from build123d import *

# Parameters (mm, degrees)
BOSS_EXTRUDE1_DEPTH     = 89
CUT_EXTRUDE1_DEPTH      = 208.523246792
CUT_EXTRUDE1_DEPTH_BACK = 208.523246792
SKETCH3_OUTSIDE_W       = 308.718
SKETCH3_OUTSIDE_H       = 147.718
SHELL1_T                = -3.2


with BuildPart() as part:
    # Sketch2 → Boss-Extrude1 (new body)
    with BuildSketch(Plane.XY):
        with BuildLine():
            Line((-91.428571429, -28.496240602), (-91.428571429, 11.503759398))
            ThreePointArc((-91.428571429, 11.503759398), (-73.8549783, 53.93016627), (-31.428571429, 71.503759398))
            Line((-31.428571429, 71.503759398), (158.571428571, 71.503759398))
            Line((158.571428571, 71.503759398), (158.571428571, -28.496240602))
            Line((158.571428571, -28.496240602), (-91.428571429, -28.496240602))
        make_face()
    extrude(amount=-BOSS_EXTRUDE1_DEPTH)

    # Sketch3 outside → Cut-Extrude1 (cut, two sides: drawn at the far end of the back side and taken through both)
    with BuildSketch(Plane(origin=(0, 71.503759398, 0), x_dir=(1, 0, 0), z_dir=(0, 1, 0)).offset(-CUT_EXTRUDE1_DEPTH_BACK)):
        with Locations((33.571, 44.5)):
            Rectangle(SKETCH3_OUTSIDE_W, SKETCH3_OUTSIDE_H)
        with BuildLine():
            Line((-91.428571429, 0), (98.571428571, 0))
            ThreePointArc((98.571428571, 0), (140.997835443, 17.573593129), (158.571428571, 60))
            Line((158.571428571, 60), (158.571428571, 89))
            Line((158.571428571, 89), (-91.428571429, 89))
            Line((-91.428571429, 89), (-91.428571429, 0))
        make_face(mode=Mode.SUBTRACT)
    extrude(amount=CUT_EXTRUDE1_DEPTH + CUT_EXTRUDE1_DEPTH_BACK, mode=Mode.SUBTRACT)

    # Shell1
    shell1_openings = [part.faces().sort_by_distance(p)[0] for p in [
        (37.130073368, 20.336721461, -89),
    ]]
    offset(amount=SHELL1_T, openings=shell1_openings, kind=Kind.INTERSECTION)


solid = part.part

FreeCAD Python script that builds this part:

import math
import FreeCAD as App
import Part
import Sketcher
from FreeCAD import Vector


def faces_at(feature, points):
    """Names of the faces that lie closest to the given points."""
    faces = feature.Shape.Faces
    near = lambda p: min(range(len(faces)), key=lambda i: faces[i].distToShape(Part.Vertex(*p))[0])
    return sorted({f"Face{near(p) + 1}" for p in points})

doc = App.newDocument("Part")
params = doc.addObject("Spreadsheet::Sheet", "Params")
for row, (alias, value) in enumerate([
    ("sketch1_radius", "60 mm"),
    ("sketch1_width", "250 mm"),
    ("sketch1_height", "40 mm"),
    ("pad1_length", "89 mm"),
    ("sketch2_radius", "60 mm"),
    ("sketch2_width", "190 mm"),
    ("sketch2_height", "89 mm"),
    ("thickness_wall", "3.2 mm"),
], start=1):
    params.set(f"A{row}", alias)
    params.set(f"B{row}", "=" + value)
    params.setAlias(f"B{row}", alias)

body = doc.addObject("PartDesign::Body", "Body")

# Sketch on XY plane
sketch1 = body.newObject("Sketcher::SketchObject", "Sketch")
sketch1.AttachmentSupport = (doc.getObject("XY_Plane"), [""])
sketch1.MapMode = "FlatFace"
sketch1.addGeometry(Part.LineSegment(Vector(-91, 12, 0), Vector(-91, -28, 0)), False)
sketch1.addGeometry(Part.LineSegment(Vector(-91, -28, 0), Vector(159, -28, 0)), False)
sketch1.addGeometry(Part.LineSegment(Vector(159, -28, 0), Vector(159, 72, 0)), False)
sketch1.addGeometry(Part.LineSegment(Vector(159, 72, 0), Vector(-31, 72, 0)), False)
sketch1.addGeometry(Part.ArcOfCircle(Part.Circle(Vector(-31, 12, 0), Vector(0, 0, 1), 60), math.radians(90), math.radians(180)), False)
sketch1.addConstraint(Sketcher.Constraint("Coincident", 0, 2, 1, 1))
sketch1.addConstraint(Sketcher.Constraint("Coincident", 1, 2, 2, 1))
sketch1.addConstraint(Sketcher.Constraint("Coincident", 2, 2, 3, 1))
sketch1.addConstraint(Sketcher.Constraint("Tangent", 3, 2, 4, 1))
sketch1.addConstraint(Sketcher.Constraint("Tangent", 4, 2, 0, 1))
sketch1.addConstraint(Sketcher.Constraint("Vertical", 0))
sketch1.addConstraint(Sketcher.Constraint("Horizontal", 1))
sketch1.addConstraint(Sketcher.Constraint("Vertical", 2))
sketch1.addConstraint(Sketcher.Constraint("Horizontal", 3))
sketch1.addConstraint(Sketcher.Constraint("Radius", 4, 60.0))
sketch1.addConstraint(Sketcher.Constraint("DistanceX", 1, 1, 1, 2, 250.0))
sketch1.addConstraint(Sketcher.Constraint("DistanceY", 0, 2, 0, 1, 40.0))
sketch1.addConstraint(Sketcher.Constraint("DistanceX", 4, 3, -1, 1, 31.428571))
sketch1.addConstraint(Sketcher.Constraint("DistanceY", -1, 1, 4, 3, 11.503759))
sketch1.setExpression("Constraints[9]", "Params.sketch1_radius")
sketch1.setExpression("Constraints[10]", "Params.sketch1_width")
sketch1.setExpression("Constraints[11]", "Params.sketch1_height")
pad1 = body.newObject("PartDesign::Pad", "Pad")
pad1.Profile = sketch1
pad1.setExpression("Length", "Params.pad1_length")
pad1.Reversed = True

# Sketch on XZ plane
sketch2 = body.newObject("Sketcher::SketchObject", "Sketch001")
sketch2.AttachmentSupport = (doc.getObject("XZ_Plane"), [""])
sketch2.MapMode = "FlatFace"
sketch2.AttachmentOffset = App.Placement(Vector(0, 0, -71.503759), App.Rotation())
sketch2.addGeometry(Part.LineSegment(Vector(-121, -118, 0), Vector(-121, 29, 0)), False)
sketch2.addGeometry(Part.LineSegment(Vector(-121, 29, 0), Vector(188, 29, 0)), False)
sketch2.addGeometry(Part.LineSegment(Vector(188, 29, 0), Vector(188, -118, 0)), False)
sketch2.addGeometry(Part.LineSegment(Vector(188, -118, 0), Vector(-121, -118, 0)), False)
sketch2.addGeometry(Part.LineSegment(Vector(99, 0, 0), Vector(-91, 0, 0)), False)
sketch2.addGeometry(Part.LineSegment(Vector(-91, 0, 0), Vector(-91, -89, 0)), False)
sketch2.addGeometry(Part.LineSegment(Vector(-91, -89, 0), Vector(159, -89, 0)), False)
sketch2.addGeometry(Part.LineSegment(Vector(159, -89, 0), Vector(159, -60, 0)), False)
sketch2.addGeometry(Part.ArcOfCircle(Part.Circle(Vector(99, -60, 0), Vector(0, 0, 1), 60), math.radians(0), math.radians(90)), False)
sketch2.addConstraint(Sketcher.Constraint("Coincident", 0, 2, 1, 1))
sketch2.addConstraint(Sketcher.Constraint("Coincident", 1, 2, 2, 1))
sketch2.addConstraint(Sketcher.Constraint("Coincident", 2, 2, 3, 1))
sketch2.addConstraint(Sketcher.Constraint("Coincident", 3, 2, 0, 1))
sketch2.addConstraint(Sketcher.Constraint("Coincident", 4, 2, 5, 1))
sketch2.addConstraint(Sketcher.Constraint("Coincident", 5, 2, 6, 1))
sketch2.addConstraint(Sketcher.Constraint("Coincident", 6, 2, 7, 1))
sketch2.addConstraint(Sketcher.Constraint("Tangent", 7, 2, 8, 1))
sketch2.addConstraint(Sketcher.Constraint("Tangent", 8, 2, 4, 1))
sketch2.addConstraint(Sketcher.Constraint("Vertical", 0))
sketch2.addConstraint(Sketcher.Constraint("Horizontal", 1))
sketch2.addConstraint(Sketcher.Constraint("Vertical", 2))
sketch2.addConstraint(Sketcher.Constraint("Horizontal", 3))
sketch2.addConstraint(Sketcher.Constraint("Horizontal", 4))
sketch2.addConstraint(Sketcher.Constraint("Vertical", 5))
sketch2.addConstraint(Sketcher.Constraint("Horizontal", 6))
sketch2.addConstraint(Sketcher.Constraint("Vertical", 7))
sketch2.addConstraint(Sketcher.Constraint("PointOnObject", 4, 2, -1))
sketch2.addConstraint(Sketcher.Constraint("Radius", 8, 60.0))
sketch2.addConstraint(Sketcher.Constraint("DistanceX", 4, 2, 4, 1, 190.0))
sketch2.addConstraint(Sketcher.Constraint("DistanceY", 5, 2, 5, 1, 89.0))
sketch2.addConstraint(Sketcher.Constraint("DistanceX", 1, 1, 1, 2, 308.718))
sketch2.addConstraint(Sketcher.Constraint("DistanceY", 0, 1, 0, 2, 147.718))
sketch2.addConstraint(Sketcher.Constraint("DistanceX", -1, 1, 1, 2, 187.93))
sketch2.addConstraint(Sketcher.Constraint("DistanceY", -1, 1, 0, 2, 29.359))
sketch2.addConstraint(Sketcher.Constraint("DistanceX", -1, 1, 8, 3, 98.571429))
sketch2.setExpression("Constraints[18]", "Params.sketch2_radius")
sketch2.setExpression("Constraints[19]", "Params.sketch2_width")
sketch2.setExpression("Constraints[20]", "Params.sketch2_height")
pocket1 = body.newObject("PartDesign::Pocket", "Pocket")
pocket1.Profile = sketch2
pocket1.Type = "ThroughAll"
pocket1.Midplane = True
doc.recompute()

thickness = body.newObject("PartDesign::Thickness", "Thickness")
thickness.Base = (pocket1, faces_at(pocket1, [(33.571, 21.504, -89)]))
thickness.setExpression("Value", "Params.thickness_wall")
thickness.Reversed = True
thickness.Join = "Intersection"

doc.recompute()
